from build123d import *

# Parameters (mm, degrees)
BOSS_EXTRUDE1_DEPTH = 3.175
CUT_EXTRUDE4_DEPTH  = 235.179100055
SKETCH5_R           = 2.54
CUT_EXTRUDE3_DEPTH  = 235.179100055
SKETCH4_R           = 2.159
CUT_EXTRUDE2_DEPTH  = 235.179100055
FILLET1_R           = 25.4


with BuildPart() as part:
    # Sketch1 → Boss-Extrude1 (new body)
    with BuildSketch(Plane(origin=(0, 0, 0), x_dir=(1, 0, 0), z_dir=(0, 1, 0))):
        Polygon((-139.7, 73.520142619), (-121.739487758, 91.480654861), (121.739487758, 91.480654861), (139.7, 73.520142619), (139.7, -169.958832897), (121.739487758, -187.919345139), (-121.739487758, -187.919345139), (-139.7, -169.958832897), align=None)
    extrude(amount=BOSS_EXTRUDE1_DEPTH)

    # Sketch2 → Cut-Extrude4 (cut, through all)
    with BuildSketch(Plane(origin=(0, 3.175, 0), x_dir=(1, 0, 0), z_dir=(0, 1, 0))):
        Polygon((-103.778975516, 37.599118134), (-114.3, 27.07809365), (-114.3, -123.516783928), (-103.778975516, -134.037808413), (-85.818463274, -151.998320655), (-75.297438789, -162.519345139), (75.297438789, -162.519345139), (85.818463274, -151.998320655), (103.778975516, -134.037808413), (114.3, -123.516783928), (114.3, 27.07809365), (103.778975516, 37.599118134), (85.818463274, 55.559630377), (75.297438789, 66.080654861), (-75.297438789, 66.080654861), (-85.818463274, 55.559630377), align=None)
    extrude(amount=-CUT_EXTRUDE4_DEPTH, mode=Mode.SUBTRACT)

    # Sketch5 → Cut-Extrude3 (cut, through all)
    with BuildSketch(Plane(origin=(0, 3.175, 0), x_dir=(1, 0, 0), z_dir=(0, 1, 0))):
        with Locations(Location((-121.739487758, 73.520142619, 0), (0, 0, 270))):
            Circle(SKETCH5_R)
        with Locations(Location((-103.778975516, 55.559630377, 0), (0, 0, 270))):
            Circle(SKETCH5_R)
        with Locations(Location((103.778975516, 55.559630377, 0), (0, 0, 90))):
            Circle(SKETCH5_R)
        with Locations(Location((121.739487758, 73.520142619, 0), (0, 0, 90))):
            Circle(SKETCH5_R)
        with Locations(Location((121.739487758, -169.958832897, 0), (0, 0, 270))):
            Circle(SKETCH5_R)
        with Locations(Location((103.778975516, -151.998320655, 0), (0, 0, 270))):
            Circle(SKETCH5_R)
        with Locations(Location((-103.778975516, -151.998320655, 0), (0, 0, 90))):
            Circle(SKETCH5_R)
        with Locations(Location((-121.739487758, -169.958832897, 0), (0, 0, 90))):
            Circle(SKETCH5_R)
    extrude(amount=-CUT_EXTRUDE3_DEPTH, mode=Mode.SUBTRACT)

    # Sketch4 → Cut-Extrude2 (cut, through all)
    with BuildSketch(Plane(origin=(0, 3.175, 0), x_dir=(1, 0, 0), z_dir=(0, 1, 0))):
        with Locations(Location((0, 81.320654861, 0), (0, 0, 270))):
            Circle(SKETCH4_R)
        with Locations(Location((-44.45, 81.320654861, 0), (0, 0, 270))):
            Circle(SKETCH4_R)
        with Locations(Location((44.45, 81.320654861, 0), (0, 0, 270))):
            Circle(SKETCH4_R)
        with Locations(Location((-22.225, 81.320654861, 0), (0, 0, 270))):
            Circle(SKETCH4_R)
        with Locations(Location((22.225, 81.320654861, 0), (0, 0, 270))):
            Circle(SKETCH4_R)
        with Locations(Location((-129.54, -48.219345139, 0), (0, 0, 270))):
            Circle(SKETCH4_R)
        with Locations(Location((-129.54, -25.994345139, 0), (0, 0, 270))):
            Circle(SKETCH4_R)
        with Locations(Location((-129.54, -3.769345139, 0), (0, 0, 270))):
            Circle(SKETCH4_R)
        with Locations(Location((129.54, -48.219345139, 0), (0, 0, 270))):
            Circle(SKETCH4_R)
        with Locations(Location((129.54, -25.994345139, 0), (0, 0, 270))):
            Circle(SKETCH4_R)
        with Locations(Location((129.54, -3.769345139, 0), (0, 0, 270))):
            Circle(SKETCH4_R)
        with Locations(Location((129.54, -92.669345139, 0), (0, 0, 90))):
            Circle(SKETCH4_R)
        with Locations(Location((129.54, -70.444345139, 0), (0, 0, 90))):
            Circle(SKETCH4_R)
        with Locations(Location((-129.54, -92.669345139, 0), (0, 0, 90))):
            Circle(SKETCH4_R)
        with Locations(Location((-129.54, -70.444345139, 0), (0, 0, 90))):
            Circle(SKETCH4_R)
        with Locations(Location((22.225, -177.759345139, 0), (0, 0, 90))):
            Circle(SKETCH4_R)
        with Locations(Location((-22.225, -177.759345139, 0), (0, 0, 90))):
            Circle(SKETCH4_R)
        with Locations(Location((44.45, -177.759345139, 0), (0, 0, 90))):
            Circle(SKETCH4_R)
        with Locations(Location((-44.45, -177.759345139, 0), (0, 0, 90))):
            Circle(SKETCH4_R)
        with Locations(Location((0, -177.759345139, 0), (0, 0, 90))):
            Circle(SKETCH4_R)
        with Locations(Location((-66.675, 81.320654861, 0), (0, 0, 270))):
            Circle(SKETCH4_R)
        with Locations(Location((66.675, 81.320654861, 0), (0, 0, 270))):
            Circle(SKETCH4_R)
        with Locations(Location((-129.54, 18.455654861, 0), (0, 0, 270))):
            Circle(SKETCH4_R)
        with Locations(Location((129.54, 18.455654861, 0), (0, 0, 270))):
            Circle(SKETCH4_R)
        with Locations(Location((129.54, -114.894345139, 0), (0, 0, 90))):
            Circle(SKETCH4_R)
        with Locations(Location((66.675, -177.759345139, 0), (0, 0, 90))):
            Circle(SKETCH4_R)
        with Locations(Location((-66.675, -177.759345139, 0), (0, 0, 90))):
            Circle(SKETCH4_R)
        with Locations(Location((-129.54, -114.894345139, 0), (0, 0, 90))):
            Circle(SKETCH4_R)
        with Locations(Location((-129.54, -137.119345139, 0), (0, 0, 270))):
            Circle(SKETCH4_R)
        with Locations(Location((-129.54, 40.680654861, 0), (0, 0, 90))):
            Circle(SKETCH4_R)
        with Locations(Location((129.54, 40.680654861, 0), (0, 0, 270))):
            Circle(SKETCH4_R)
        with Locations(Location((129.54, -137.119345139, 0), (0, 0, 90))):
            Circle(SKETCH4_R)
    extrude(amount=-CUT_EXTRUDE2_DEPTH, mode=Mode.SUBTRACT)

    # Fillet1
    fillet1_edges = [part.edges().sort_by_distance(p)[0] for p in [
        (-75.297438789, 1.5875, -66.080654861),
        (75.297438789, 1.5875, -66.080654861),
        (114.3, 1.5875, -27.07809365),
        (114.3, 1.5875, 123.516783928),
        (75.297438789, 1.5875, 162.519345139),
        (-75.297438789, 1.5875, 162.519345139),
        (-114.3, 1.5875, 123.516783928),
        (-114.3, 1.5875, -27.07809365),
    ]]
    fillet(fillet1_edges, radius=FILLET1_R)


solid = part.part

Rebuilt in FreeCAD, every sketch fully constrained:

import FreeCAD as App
import Part
import Sketcher

V = App.Vector
Q = App.Units.Quantity


def edges_at(feature, points):
    """Names of the edges that pass closest to the given points."""
    edges = feature.Shape.Edges
    near = lambda p: min(range(len(edges)), key=lambda i: edges[i].distToShape(Part.Vertex(*p))[0])
    return sorted({f"Edge{near(p) + 1}" for p in points})


def add_polygon(sketch, points):
    """Adds a closed chain of lines whose ends are joined by coincident constraints."""
    first, n = sketch.GeometryCount, len(points)
    for a, b in zip(points, points[1:] + points[:1]):
        sketch.addGeometry(Part.LineSegment(App.Vector(*a, 0), App.Vector(*b, 0)), False)
    for i in range(n):
        sketch.addConstraint(Sketcher.Constraint("Coincident", first + i, 2, first + (i + 1) % n, 1))

doc = App.newDocument("Part")
body = doc.addObject("PartDesign::Body", "Body")

# Sketch on XZ plane
sketch1 = body.newObject("Sketcher::SketchObject", "Sketch")
sketch1.AttachmentSupport = (doc.getObject("XZ_Plane"), [""])
sketch1.MapMode = "FlatFace"
add_polygon(sketch1, [(-121.739488, -91.480655), (-139.7, -73.520143), (-139.7, 169.958833), (-121.739488, 187.919345), (121.739488, 187.919345), (139.7, 169.958833), (139.7, -73.520143), (121.739488, -91.480655)])  # lines 0-7
sketch1.addConstraint(Sketcher.Constraint("Vertical", 1))
sketch1.addConstraint(Sketcher.Constraint("Horizontal", 3))
sketch1.addConstraint(Sketcher.Constraint("Vertical", 5))
sketch1.addConstraint(Sketcher.Constraint("Horizontal", 7))
sketch1.addConstraint(Sketcher.Constraint("Symmetric", 1, 2, 4, 2, -2))
sketch1.addConstraint(Sketcher.Constraint("Perpendicular", 0, 2))
sketch1.addConstraint(Sketcher.Constraint("Perpendicular", 2, 4))
sketch1.addConstraint(Sketcher.Constraint("Perpendicular", 4, 6))
sketch1.addConstraint(Sketcher.Constraint("Horizontal", 0, 2, 5, 2))
sketch1.addConstraint(Sketcher.Constraint("Vertical", 3, 2, 6, 2))
sketch1.addConstraint(Sketcher.Constraint("Vertical", 2, 2, 7, 2))
sketch1.addConstraint(Sketcher.Constraint("Equal", 7, 1))
sketch1.addConstraint(Sketcher.Constraint("Distance", 0, Q("1 in")))
sketch1.addConstraint(Sketcher.Constraint("DistanceX", 1, 2, 4, 2, Q("11 in")))
sketch1.addConstraint(Sketcher.Constraint("DistanceY", 0, 2, -1, 1, Q("73.520143 mm")))
pad1 = body.newObject("PartDesign::Pad", "Pad")
pad1.Profile = sketch1
pad1.Length = Q("0.125 in")
pad1.Reversed = True

# Sketch on XZ plane
sketch2 = body.newObject("Sketcher::SketchObject", "Sketch001")
sketch2.AttachmentSupport = (doc.getObject("XZ_Plane"), [""])
sketch2.MapMode = "FlatFace"
sketch2.AttachmentOffset = App.Placement(V(0, 0, -0.125 * 25.4), App.Rotation())
add_polygon(sketch2, [(-103.778976, -37.599118), (-114.3, -27.078094), (-114.3, 123.516784), (-103.778976, 134.037808), (-85.818463, 151.998321), (-75.297439, 162.519345), (75.297439, 162.519345), (85.818463, 151.998321), (103.778976, 134.037808), (114.3, 123.516784), (114.3, -27.078094), (103.778976, -37.599118), (85.818463, -55.55963), (75.297439, -66.080655), (-75.297439, -66.080655), (-85.818463, -55.55963)])  # lines 0-15
sketch2.addConstraint(Sketcher.Constraint("Vertical", 1))
sketch2.addConstraint(Sketcher.Constraint("Horizontal", 5))
sketch2.addConstraint(Sketcher.Constraint("Vertical", 9))
sketch2.addConstraint(Sketcher.Constraint("Horizontal", 13))
sketch2.addConstraint(Sketcher.Constraint("Symmetric", 3, 2, 6, 2, -2))
sketch2.addConstraint(Sketcher.Constraint("Symmetric", 2, 2, 7, 2, -2))
sketch2.addConstraint(Sketcher.Constraint("Symmetric", 1, 2, 8, 2, -2))
sketch2.addConstraint(Sketcher.Constraint("Symmetric", 11, 2, 14, 2, -2))
sketch2.addConstraint(Sketcher.Constraint("Symmetric", 10, 2, 15, 2, -2))
sketch2.addConstraint(Sketcher.Constraint("Perpendicular", 0, 2))
sketch2.addConstraint(Sketcher.Constraint("Parallel", 2, 3))
sketch2.addConstraint(Sketcher.Constraint("Parallel", 3, 4))
sketch2.addConstraint(Sketcher.Constraint("Perpendicular", 4, 6))
sketch2.addConstraint(Sketcher.Constraint("Parallel", 6, 7))
sketch2.addConstraint(Sketcher.Constraint("Perpendicular", 8, 10))
sketch2.addConstraint(Sketcher.Constraint("Parallel", 10, 11))
sketch2.addConstraint(Sketcher.Constraint("Parallel", 11, 12))
sketch2.addConstraint(Sketcher.Constraint("Perpendicular", 12, 14))
sketch2.addConstraint(Sketcher.Constraint("Vertical", 7, 2, 10, 2))
sketch2.addConstraint(Sketcher.Constraint("Vertical", 6, 2, 11, 2))
sketch2.addConstraint(Sketcher.Constraint("Vertical", 5, 2, 12, 2))
sketch2.addConstraint(Sketcher.Constraint("Equal", 13, 1))
sketch2.addConstraint(Sketcher.Constraint("Equal", 2, 4))
sketch2.addConstraint(Sketcher.Constraint("Distance", 3, Q("1 in")))
sketch2.addConstraint(Sketcher.Constraint("DistanceX", 0, 2, 9, 2, Q("9 in")))
sketch2.addConstraint(Sketcher.Constraint("DistanceX", 5, 1, 5, 2, Q("150.594878 mm")))
sketch2.addConstraint(Sketcher.Constraint("DistanceY", -1, 1, 2, 2, Q("134.037808 mm")))
pocket1 = body.newObject("PartDesign::Pocket", "Pocket")
pocket1.Profile = sketch2
pocket1.Type = "ThroughAll"
pocket1.Reversed = True

# Sketch on XZ plane
sketch3 = body.newObject("Sketcher::SketchObject", "Sketch002")
sketch3.AttachmentSupport = (doc.getObject("XZ_Plane"), [""])
sketch3.MapMode = "FlatFace"
sketch3.AttachmentOffset = App.Placement(V(0, 0, -0.125 * 25.4), App.Rotation())
sketch3.addGeometry(Part.Circle(V(-121.739488, -73.520143, 0), V(0, 0, 1), 2.54), False)
sketch3.addGeometry(Part.Circle(V(-103.778976, -55.55963, 0), V(0, 0, 1), 2.54), False)
sketch3.addGeometry(Part.Circle(V(103.778976, -55.55963, 0), V(0, 0, 1), 2.54), False)
sketch3.addGeometry(Part.Circle(V(121.739488, -73.520143, 0), V(0, 0, 1), 2.54), False)
sketch3.addGeometry(Part.Circle(V(121.739488, 169.958833, 0), V(0, 0, 1), 2.54), False)
sketch3.addGeometry(Part.Circle(V(103.778976, 151.998321, 0), V(0, 0, 1), 2.54), False)
sketch3.addGeometry(Part.Circle(V(-103.778976, 151.998321, 0), V(0, 0, 1), 2.54), False)
sketch3.addGeometry(Part.Circle(V(-121.739488, 169.958833, 0), V(0, 0, 1), 2.54), False)
sketch3.addConstraint(Sketcher.Constraint("Equal", 0, 1))
sketch3.addConstraint(Sketcher.Constraint("Equal", 1, 2))
sketch3.addConstraint(Sketcher.Constraint("Equal", 2, 3))
sketch3.addConstraint(Sketcher.Constraint("Equal", 3, 4))
sketch3.addConstraint(Sketcher.Constraint("Equal", 4, 5))
sketch3.addConstraint(Sketcher.Constraint("Equal", 5, 6))
sketch3.addConstraint(Sketcher.Constraint("Equal", 6, 7))
sketch3.addConstraint(Sketcher.Constraint("Symmetric", 1, 3, 2, 3, -2))
sketch3.addConstraint(Sketcher.Constraint("Symmetric", 0, 3, 3, 3, -2))
sketch3.addConstraint(Sketcher.Constraint("Symmetric", 5, 3, 6, 3, -2))
sketch3.addConstraint(Sketcher.Constraint("Symmetric", 4, 3, 7, 3, -2))
sketch3.addConstraint(Sketcher.Constraint("Vertical", 3, 3, 4, 3))
sketch3.addConstraint(Sketcher.Constraint("Vertical", 2, 3, 5, 3))
sketch3.addConstraint(Sketcher.Constraint("Diameter", 0, Q("0.2 in")))
sketch3.addConstraint(Sketcher.Constraint("DistanceY", 1, 3, -1, 1, Q("55.55963 mm")))
sketch3.addConstraint(Sketcher.Constraint("DistanceY", -1, 1, 5, 3, Q("151.998321 mm")))
sketch3.addConstraint(Sketcher.Constraint("DistanceX", 1, 3, 2, 3, Q("207.557951 mm")))
sketch3.addConstraint(Sketcher.Constraint("DistanceX", 0, 3, -1, 1, Q("121.739488 mm")))
sketch3.addConstraint(Sketcher.Constraint("DistanceY", 0, 3, -1, 1, Q("73.520143 mm")))
sketch3.addConstraint(Sketcher.Constraint("DistanceY", -1, 1, 4, 3, Q("169.958833 mm")))
pocket2 = body.newObject("PartDesign::Pocket", "Pocket001")
pocket2.Profile = sketch3
pocket2.Type = "ThroughAll"
pocket2.Reversed = True

# Sketch on XZ plane
sketch4 = body.newObject("Sketcher::SketchObject", "Sketch003")
sketch4.AttachmentSupport = (doc.getObject("XZ_Plane"), [""])
sketch4.MapMode = "FlatFace"
sketch4.AttachmentOffset = App.Placement(V(0, 0, -0.125 * 25.4), App.Rotation())
sketch4.addGeometry(Part.Circle(V(0, -81.320655, 0), V(0, 0, 1), 2.159), False)
sketch4.addGeometry(Part.Circle(V(-44.45, -81.320655, 0), V(0, 0, 1), 2.159), False)
sketch4.addGeometry(Part.Circle(V(44.45, -81.320655, 0), V(0, 0, 1), 2.159), False)
sketch4.addGeometry(Part.Circle(V(-22.225, -81.320655, 0), V(0, 0, 1), 2.159), False)
sketch4.addGeometry(Part.Circle(V(22.225, -81.320655, 0), V(0, 0, 1), 2.159), False)
sketch4.addGeometry(Part.Circle(V(-129.54, 48.219345, 0), V(0, 0, 1), 2.159), False)
sketch4.addGeometry(Part.Circle(V(-129.54, 25.994345, 0), V(0, 0, 1), 2.159), False)
sketch4.addGeometry(Part.Circle(V(-129.54, 3.769345, 0), V(0, 0, 1), 2.159), False)
sketch4.addGeometry(Part.Circle(V(129.54, 48.219345, 0), V(0, 0, 1), 2.159), False)
sketch4.addGeometry(Part.Circle(V(129.54, 25.994345, 0), V(0, 0, 1), 2.159), False)
sketch4.addGeometry(Part.Circle(V(129.54, 3.769345, 0), V(0, 0, 1), 2.159), False)
sketch4.addGeometry(Part.Circle(V(129.54, 92.669345, 0), V(0, 0, 1), 2.159), False)
sketch4.addGeometry(Part.Circle(V(129.54, 70.444345, 0), V(0, 0, 1), 2.159), False)
sketch4.addGeometry(Part.Circle(V(-129.54, 92.669345, 0), V(0, 0, 1), 2.159), False)
sketch4.addGeometry(Part.Circle(V(-129.54, 70.444345, 0), V(0, 0, 1), 2.159), False)
sketch4.addGeometry(Part.Circle(V(22.225, 177.759345, 0), V(0, 0, 1), 2.159), False)
sketch4.addGeometry(Part.Circle(V(-22.225, 177.759345, 0), V(0, 0, 1), 2.159), False)
sketch4.addGeometry(Part.Circle(V(44.45, 177.759345, 0), V(0, 0, 1), 2.159), False)
sketch4.addGeometry(Part.Circle(V(-44.45, 177.759345, 0), V(0, 0, 1), 2.159), False)
sketch4.addGeometry(Part.Circle(V(0, 177.759345, 0), V(0, 0, 1), 2.159), False)
sketch4.addGeometry(Part.Circle(V(-66.675, -81.320655, 0), V(0, 0, 1), 2.159), False)
sketch4.addGeometry(Part.Circle(V(66.675, -81.320655, 0), V(0, 0, 1), 2.159), False)
sketch4.addGeometry(Part.Circle(V(-129.54, -18.455655, 0), V(0, 0, 1), 2.159), False)
sketch4.addGeometry(Part.Circle(V(129.54, -18.455655, 0), V(0, 0, 1), 2.159), False)
sketch4.addGeometry(Part.Circle(V(129.54, 114.894345, 0), V(0, 0, 1), 2.159), False)
sketch4.addGeometry(Part.Circle(V(66.675, 177.759345, 0), V(0, 0, 1), 2.159), False)
sketch4.addGeometry(Part.Circle(V(-66.675, 177.759345, 0), V(0, 0, 1), 2.159), False)
sketch4.addGeometry(Part.Circle(V(-129.54, 114.894345, 0), V(0, 0, 1), 2.159), False)
sketch4.addGeometry(Part.Circle(V(-129.54, 137.119345, 0), V(0, 0, 1), 2.159), False)
sketch4.addGeometry(Part.Circle(V(-129.54, -40.680655, 0), V(0, 0, 1), 2.159), False)
sketch4.addGeometry(Part.Circle(V(129.54, -40.680655, 0), V(0, 0, 1), 2.159), False)
sketch4.addGeometry(Part.Circle(V(129.54, 137.119345, 0), V(0, 0, 1), 2.159), False)
sketch4.addConstraint(Sketcher.Constraint("Equal", 0, 1))
sketch4.addConstraint(Sketcher.Constraint("Equal", 1, 2))
sketch4.addConstraint(Sketcher.Constraint("Equal", 2, 3))
sketch4.addConstraint(Sketcher.Constraint("Equal", 3, 4))
sketch4.addConstraint(Sketcher.Constraint("Equal", 4, 5))
sketch4.addConstraint(Sketcher.Constraint("Equal", 5, 6))
sketch4.addConstraint(Sketcher.Constraint("Equal", 6, 7))
sketch4.addConstraint(Sketcher.Constraint("Equal", 7, 8))
sketch4.addConstraint(Sketcher.Constraint("Equal", 8, 9))
sketch4.addConstraint(Sketcher.Constraint("Equal", 9, 10))
sketch4.addConstraint(Sketcher.Constraint("Equal", 10, 11))
sketch4.addConstraint(Sketcher.Constraint("Equal", 11, 12))
sketch4.addConstraint(Sketcher.Constraint("Equal", 12, 13))
sketch4.addConstraint(Sketcher.Constraint("Equal", 13, 14))
sketch4.addConstraint(Sketcher.Constraint("Equal", 14, 15))
sketch4.addConstraint(Sketcher.Constraint("Equal", 15, 16))
sketch4.addConstraint(Sketcher.Constraint("Equal", 16, 17))
sketch4.addConstraint(Sketcher.Constraint("Equal", 17, 18))
sketch4.addConstraint(Sketcher.Constraint("Equal", 18, 19))
sketch4.addConstraint(Sketcher.Constraint("Equal", 19, 20))
sketch4.addConstraint(Sketcher.Constraint("Equal", 20, 21))
sketch4.addConstraint(Sketcher.Constraint("Equal", 21, 22))
sketch4.addConstraint(Sketcher.Constraint("Equal", 22, 23))
sketch4.addConstraint(Sketcher.Constraint("Equal", 23, 24))
sketch4.addConstraint(Sketcher.Constraint("Equal", 24, 25))
sketch4.addConstraint(Sketcher.Constraint("Equal", 25, 26))
sketch4.addConstraint(Sketcher.Constraint("Equal", 26, 27))
sketch4.addConstraint(Sketcher.Constraint("Equal", 27, 28))
sketch4.addConstraint(Sketcher.Constraint("Equal", 28, 29))
sketch4.addConstraint(Sketcher.Constraint("Equal", 29, 30))
sketch4.addConstraint(Sketcher.Constraint("Equal", 30, 31))
sketch4.addConstraint(Sketcher.Constraint("Symmetric", 1, 3, 2, 3, -2))
sketch4.addConstraint(Sketcher.Constraint("Symmetric", 3, 3, 4, 3, -2))
sketch4.addConstraint(Sketcher.Constraint("Symmetric", 5, 3, 8, 3, -2))
sketch4.addConstraint(Sketcher.Constraint("Symmetric", 6, 3, 9, 3, -2))
sketch4.addConstraint(Sketcher.Constraint("Symmetric", 7, 3, 10, 3, -2))
sketch4.addConstraint(Sketcher.Constraint("Symmetric", 11, 3, 13, 3, -2))
sketch4.addConstraint(Sketcher.Constraint("Symmetric", 12, 3, 14, 3, -2))
sketch4.addConstraint(Sketcher.Constraint("Symmetric", 15, 3, 16, 3, -2))
sketch4.addConstraint(Sketcher.Constraint("Symmetric", 17, 3, 18, 3, -2))
sketch4.addConstraint(Sketcher.Constraint("Symmetric", 20, 3, 21, 3, -2))
sketch4.addConstraint(Sketcher.Constraint("Symmetric", 22, 3, 23, 3, -2))
sketch4.addConstraint(Sketcher.Constraint("Symmetric", 25, 3, 26, 3, -2))
sketch4.addConstraint(Sketcher.Constraint("Symmetric", 24, 3, 27, 3, -2))
sketch4.addConstraint(Sketcher.Constraint("Symmetric", 29, 3, 30, 3, -2))
sketch4.addConstraint(Sketcher.Constraint("Symmetric", 28, 3, 31, 3, -2))
sketch4.addConstraint(Sketcher.Constraint("PointOnObject", 0, 3, -2))
sketch4.addConstraint(Sketcher.Constraint("PointOnObject", 19, 3, -2))
sketch4.addConstraint(Sketcher.Constraint("Horizontal", 0, 3, 1, 3))
sketch4.addConstraint(Sketcher.Constraint("Horizontal", 2, 3, 3, 3))
sketch4.addConstraint(Sketcher.Constraint("Horizontal", 16, 3, 17, 3))
sketch4.addConstraint(Sketcher.Constraint("Horizontal", 18, 3, 19, 3))
sketch4.addConstraint(Sketcher.Constraint("Horizontal", 4, 3, 20, 3))
sketch4.addConstraint(Sketcher.Constraint("Horizontal", 19, 3, 25, 3))
sketch4.addConstraint(Sketcher.Constraint("Vertical", 5, 3, 6, 3))
sketch4.addConstraint(Sketcher.Constraint("Vertical", 6, 3, 7, 3))
sketch4.addConstraint(Sketcher.Constraint("Vertical", 10, 3, 11, 3))
sketch4.addConstraint(Sketcher.Constraint("Vertical", 11, 3, 12, 3))
sketch4.addConstraint(Sketcher.Constraint("Vertical", 4, 3, 15, 3))
sketch4.addConstraint(Sketcher.Constraint("Vertical", 2, 3, 17, 3))
sketch4.addConstraint(Sketcher.Constraint("Vertical", 14, 3, 22, 3))
sketch4.addConstraint(Sketcher.Constraint("Vertical", 23, 3, 24, 3))
sketch4.addConstraint(Sketcher.Constraint("Vertical", 21, 3, 25, 3))
sketch4.addConstraint(Sketcher.Constraint("Vertical", 27, 3, 28, 3))
sketch4.addConstraint(Sketcher.Constraint("Vertical", 28, 3, 29, 3))
sketch4.addConstraint(Sketcher.Constraint("Diameter", 0, Q("0.17 in")))
sketch4.addConstraint(Sketcher.Constraint("DistanceX", 5, 3, -1, 1, Q("5.1 in")))
sketch4.addConstraint(Sketcher.Constraint("DistanceX", 1, 3, 2, 3, Q("3.5 in")))
sketch4.addConstraint(Sketcher.Constraint("DistanceY", 1, 3, 5, 3, Q("5.1 in")))
sketch4.addConstraint(Sketcher.Constraint("DistanceY", 10, 3, 11, 3, Q("3.5 in")))
sketch4.addConstraint(Sketcher.Constraint("DistanceY", 8, 3, 15, 3, Q("5.1 in")))
sketch4.addConstraint(Sketcher.Constraint("DistanceX", 20, 3, 4, 3, Q("3.5 in")))
sketch4.addConstraint(Sketcher.Constraint("DistanceY", 22, 3, 14, 3, Q("3.5 in")))
sketch4.addConstraint(Sketcher.Constraint("DistanceY", 9, 3, 24, 3, Q("3.5 in")))
sketch4.addConstraint(Sketcher.Constraint("DistanceY", 28, 3, 26, 3, Q("1.6 in")))
sketch4.addConstraint(Sketcher.Constraint("DistanceY", 20, 3, 29, 3, Q("1.6 in")))
sketch4.addConstraint(Sketcher.Constraint("DistanceX", 3, 3, 4, 3, Q("1.75 in")))
sketch4.addConstraint(Sketcher.Constraint("DistanceY", 7, 3, 5, 3, Q("1.75 in")))
sketch4.addConstraint(Sketcher.Constraint("DistanceY", 9, 3, 12, 3, Q("1.75 in")))
sketch4.addConstraint(Sketcher.Constraint("DistanceY", 6, 3, 5, 3, Q("0.875 in")))
sketch4.addConstraint(Sketcher.Constraint("DistanceY", 0, 3, -1, 1, Q("81.320655 mm")))
pocket3 = body.newObject("PartDesign::Pocket", "Pocket002")
pocket3.Profile = sketch4
pocket3.Type = "ThroughAll"
pocket3.Reversed = True
doc.recompute()

fillet = body.newObject("PartDesign::Fillet", "Fillet")
fillet.Base = (pocket3, edges_at(pocket3, [
    (-75.297, 1.587, -66.081),
    (75.297, 1.587, -66.081),
    (114.3, 1.587, -27.078),
    (114.3, 1.587, 123.517),
    (75.297, 1.587, 162.519),
    (-75.297, 1.587, 162.519),
    (-114.3, 1.587, 123.517),
    (-114.3, 1.587, -27.078),
]))
fillet.Radius = Q("1 in")

doc.recompute()
